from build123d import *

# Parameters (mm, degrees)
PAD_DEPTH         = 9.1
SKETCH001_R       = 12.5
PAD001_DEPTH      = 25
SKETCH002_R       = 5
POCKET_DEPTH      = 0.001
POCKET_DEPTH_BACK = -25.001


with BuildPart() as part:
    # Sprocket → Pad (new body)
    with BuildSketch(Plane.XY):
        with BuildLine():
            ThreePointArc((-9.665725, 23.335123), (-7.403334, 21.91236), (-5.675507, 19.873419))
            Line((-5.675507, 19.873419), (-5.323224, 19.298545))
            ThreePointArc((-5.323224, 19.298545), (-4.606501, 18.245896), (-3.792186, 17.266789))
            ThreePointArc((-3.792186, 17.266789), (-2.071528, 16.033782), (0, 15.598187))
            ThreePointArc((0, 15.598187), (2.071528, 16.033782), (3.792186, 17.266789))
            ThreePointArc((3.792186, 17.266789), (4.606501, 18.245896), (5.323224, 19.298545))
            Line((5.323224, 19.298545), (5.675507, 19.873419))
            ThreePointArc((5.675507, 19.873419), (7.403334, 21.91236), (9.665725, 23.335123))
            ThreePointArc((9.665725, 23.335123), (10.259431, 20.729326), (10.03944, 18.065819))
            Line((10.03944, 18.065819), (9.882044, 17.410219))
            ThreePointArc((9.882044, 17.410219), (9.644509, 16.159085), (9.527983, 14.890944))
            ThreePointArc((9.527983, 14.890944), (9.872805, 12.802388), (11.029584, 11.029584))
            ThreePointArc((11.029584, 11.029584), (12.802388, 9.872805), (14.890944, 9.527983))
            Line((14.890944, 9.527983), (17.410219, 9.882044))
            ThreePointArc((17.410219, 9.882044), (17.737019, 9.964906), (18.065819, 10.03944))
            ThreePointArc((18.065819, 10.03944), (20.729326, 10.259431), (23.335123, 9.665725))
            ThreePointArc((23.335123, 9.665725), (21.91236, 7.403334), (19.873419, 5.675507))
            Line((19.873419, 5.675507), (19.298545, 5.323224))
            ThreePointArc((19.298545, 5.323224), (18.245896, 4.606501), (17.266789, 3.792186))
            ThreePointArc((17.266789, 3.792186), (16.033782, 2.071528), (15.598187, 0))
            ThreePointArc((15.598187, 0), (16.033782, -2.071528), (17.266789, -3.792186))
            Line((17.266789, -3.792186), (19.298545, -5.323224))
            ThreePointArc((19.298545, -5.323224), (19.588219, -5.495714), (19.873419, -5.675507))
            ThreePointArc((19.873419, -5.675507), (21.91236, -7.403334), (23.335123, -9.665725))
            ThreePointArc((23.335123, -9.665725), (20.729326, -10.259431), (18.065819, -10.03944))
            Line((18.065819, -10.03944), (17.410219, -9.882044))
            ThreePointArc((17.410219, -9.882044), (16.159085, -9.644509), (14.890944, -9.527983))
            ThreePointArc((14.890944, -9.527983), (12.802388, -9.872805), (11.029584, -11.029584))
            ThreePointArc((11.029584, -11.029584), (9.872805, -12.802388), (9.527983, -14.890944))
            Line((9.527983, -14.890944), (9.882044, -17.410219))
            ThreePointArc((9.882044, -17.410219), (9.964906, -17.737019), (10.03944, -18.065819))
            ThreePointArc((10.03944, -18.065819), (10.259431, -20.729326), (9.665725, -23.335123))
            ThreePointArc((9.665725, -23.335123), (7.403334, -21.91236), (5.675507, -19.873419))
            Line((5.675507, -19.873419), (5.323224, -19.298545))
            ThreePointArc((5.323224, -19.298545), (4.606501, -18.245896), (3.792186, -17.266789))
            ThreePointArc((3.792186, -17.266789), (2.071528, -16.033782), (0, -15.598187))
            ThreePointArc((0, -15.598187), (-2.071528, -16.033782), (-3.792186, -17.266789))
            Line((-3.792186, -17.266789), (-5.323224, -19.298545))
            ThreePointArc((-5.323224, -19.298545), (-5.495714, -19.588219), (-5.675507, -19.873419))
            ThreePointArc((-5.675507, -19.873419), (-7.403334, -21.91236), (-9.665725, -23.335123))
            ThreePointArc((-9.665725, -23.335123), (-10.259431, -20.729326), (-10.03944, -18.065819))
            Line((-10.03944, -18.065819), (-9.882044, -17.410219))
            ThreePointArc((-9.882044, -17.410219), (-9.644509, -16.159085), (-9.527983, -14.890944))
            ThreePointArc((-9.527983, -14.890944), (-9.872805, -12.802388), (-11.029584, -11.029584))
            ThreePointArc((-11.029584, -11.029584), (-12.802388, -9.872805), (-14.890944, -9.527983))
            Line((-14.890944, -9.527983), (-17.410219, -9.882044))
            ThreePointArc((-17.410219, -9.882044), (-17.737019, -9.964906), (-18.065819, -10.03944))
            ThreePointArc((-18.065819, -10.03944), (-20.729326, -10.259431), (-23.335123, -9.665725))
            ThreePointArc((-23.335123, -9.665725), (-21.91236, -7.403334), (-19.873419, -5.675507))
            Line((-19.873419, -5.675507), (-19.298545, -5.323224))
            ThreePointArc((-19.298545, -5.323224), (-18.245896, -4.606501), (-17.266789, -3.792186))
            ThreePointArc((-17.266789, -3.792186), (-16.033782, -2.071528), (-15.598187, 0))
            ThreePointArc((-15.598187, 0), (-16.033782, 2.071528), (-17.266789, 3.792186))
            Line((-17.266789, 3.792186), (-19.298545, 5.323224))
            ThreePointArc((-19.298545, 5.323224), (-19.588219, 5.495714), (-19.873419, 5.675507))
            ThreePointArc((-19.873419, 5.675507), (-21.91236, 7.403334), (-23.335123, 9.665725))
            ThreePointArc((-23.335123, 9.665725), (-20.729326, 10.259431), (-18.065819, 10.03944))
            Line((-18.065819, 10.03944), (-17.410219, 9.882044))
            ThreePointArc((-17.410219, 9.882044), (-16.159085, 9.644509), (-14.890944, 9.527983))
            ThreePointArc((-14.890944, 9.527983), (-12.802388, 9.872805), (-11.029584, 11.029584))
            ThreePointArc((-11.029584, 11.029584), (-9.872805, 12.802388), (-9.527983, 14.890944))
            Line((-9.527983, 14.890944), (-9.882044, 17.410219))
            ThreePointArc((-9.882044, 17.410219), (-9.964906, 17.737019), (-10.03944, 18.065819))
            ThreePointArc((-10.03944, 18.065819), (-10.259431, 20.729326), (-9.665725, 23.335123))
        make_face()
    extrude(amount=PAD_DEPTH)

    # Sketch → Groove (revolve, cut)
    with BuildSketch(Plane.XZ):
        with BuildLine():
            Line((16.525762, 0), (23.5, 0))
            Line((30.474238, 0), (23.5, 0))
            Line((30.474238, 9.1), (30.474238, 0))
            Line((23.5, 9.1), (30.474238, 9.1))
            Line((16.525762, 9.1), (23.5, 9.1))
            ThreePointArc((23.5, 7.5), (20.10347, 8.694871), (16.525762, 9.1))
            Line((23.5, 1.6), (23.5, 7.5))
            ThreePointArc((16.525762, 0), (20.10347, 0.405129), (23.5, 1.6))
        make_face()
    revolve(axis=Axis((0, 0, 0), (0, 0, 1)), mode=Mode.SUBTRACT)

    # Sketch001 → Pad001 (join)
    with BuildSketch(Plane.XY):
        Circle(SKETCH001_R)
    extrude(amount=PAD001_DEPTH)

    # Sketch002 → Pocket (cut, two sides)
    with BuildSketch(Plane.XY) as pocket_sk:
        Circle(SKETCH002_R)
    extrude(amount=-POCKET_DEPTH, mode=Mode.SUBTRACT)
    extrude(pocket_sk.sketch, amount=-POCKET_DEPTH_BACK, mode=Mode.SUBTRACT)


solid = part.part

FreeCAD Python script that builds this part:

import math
import FreeCAD as App
import Part
import Sketcher
from FreeCAD import Vector
Q = App.Units.Quantity

doc = App.newDocument("Part")
body = doc.addObject("PartDesign::Body", "Body")

# Sketch on XY plane
sketch1 = body.newObject("Sketcher::SketchObject", "Sketch")
sketch1.AttachmentSupport = (doc.getObject("XY_Plane"), [""])
sketch1.MapMode = "FlatFace"
sketch1.addGeometry([
    Part.ArcOfCircle(Part.Circle(Vector(-13.1, 15.3, 0), Vector(0, 0, 1), 8.8), math.radians(32), math.radians(67)),  # 0
    Part.ArcOfCircle(Part.Circle(Vector(-1.5, 20.1, 0), Vector(0, 0, 1), 8.8), math.radians(158), math.radians(193)),  # 1
    Part.ArcOfCircle(Part.Circle(Vector(2.9, 20.8, 0), Vector(0, 0, 1), 13.3), math.radians(-167.96), math.radians(-165.04)),  # 2
    Part.LineSegment(Vector(-9.9, 17.4, 0), Vector(-9.5, 14.9, 0)),  # 3
    Part.ArcOfCircle(Part.Circle(Vector(-14.7, 14.7, 0), Vector(0, 0, 1), 5.1), math.radians(-45), math.radians(2)),  # 4
    Part.ArcOfCircle(Part.Circle(Vector(-14.7, 14.7, 0), Vector(0, 0, 1), 5.1), math.radians(-92), math.radians(-45)),  # 5
    Part.ArcOfCircle(Part.Circle(Vector(-14.3, 22.8, 0), Vector(0, 0, 1), 13.3), math.radians(-103.5), math.radians(-92.5)),  # 6
    Part.LineSegment(Vector(-17.4, 9.9, 0), Vector(-18.1, 10, 0)),  # 7
    Part.ArcOfCircle(Part.Circle(Vector(-20.1, 1.5, 0), Vector(0, 0, 1), 8.8), math.radians(77), math.radians(112)),  # 8
    Part.ArcOfCircle(Part.Circle(Vector(-15.3, 13.1, 0), Vector(0, 0, 1), 8.8), math.radians(-157), math.radians(-122)),  # 9
    Part.ArcOfCircle(Part.Circle(Vector(-12.7, 16.8, 0), Vector(0, 0, 1), 13.3), math.radians(-122.96), math.radians(-120.04)),  # 10
    Part.LineSegment(Vector(-19.3, 5.3, 0), Vector(-17.3, 3.8, 0)),  # 11
    Part.ArcOfCircle(Part.Circle(Vector(-20.7, 0, 0), Vector(0, 0, 1), 5.1), math.radians(0), math.radians(48)),  # 12
    Part.ArcOfCircle(Part.Circle(Vector(-20.7, 0, 0), Vector(0, 0, 1), 5.1), math.radians(-48), math.radians(0)),  # 13
    Part.ArcOfCircle(Part.Circle(Vector(-26.2, 6, 0), Vector(0, 0, 1), 13.3), math.radians(-58.5), math.radians(-47.5)),  # 14
    Part.LineSegment(Vector(-19.3, -5.3, 0), Vector(-19.9, -5.7, 0)),  # 15
    Part.ArcOfCircle(Part.Circle(Vector(-15.3, -13.1, 0), Vector(0, 0, 1), 8.8), math.radians(122), math.radians(157)),  # 16
    Part.ArcOfCircle(Part.Circle(Vector(-20.1, -1.5, 0), Vector(0, 0, 1), 8.8), math.radians(-112), math.radians(-77)),  # 17
    Part.ArcOfCircle(Part.Circle(Vector(-20.8, 2.9, 0), Vector(0, 0, 1), 13.3), math.radians(-77.96), math.radians(-75.04)),  # 18
    Part.LineSegment(Vector(-17.4, -9.9, 0), Vector(-14.9, -9.5, 0)),  # 19
    Part.ArcOfCircle(Part.Circle(Vector(-14.7, -14.7, 0), Vector(0, 0, 1), 5.1), math.radians(45), math.radians(92)),  # 20
    Part.ArcOfCircle(Part.Circle(Vector(-14.7, -14.7, 0), Vector(0, 0, 1), 5.1), math.radians(-2), math.radians(45)),  # 21
    Part.ArcOfCircle(Part.Circle(Vector(-22.8, -14.3, 0), Vector(0, 0, 1), 13.3), math.radians(-13.5), math.radians(-2.5)),  # 22
    Part.LineSegment(Vector(-9.9, -17.4, 0), Vector(-10, -18.1, 0)),  # 23
    Part.ArcOfCircle(Part.Circle(Vector(-1.5, -20.1, 0), Vector(0, 0, 1), 8.8), math.radians(167), math.radians(202)),  # 24
    Part.ArcOfCircle(Part.Circle(Vector(-13.1, -15.3, 0), Vector(0, 0, 1), 8.8), math.radians(-67), math.radians(-32)),  # 25
    Part.ArcOfCircle(Part.Circle(Vector(-16.8, -12.7, 0), Vector(0, 0, 1), 13.3), math.radians(-32.96), math.radians(-30.04)),  # 26
    Part.LineSegment(Vector(-5.3, -19.3, 0), Vector(-3.8, -17.3, 0)),  # 27
    Part.ArcOfCircle(Part.Circle(Vector(0, -20.7, 0), Vector(0, 0, 1), 5.1), math.radians(90), math.radians(138)),  # 28
    Part.ArcOfCircle(Part.Circle(Vector(0, -20.7, 0), Vector(0, 0, 1), 5.1), math.radians(42), math.radians(90)),  # 29
    Part.ArcOfCircle(Part.Circle(Vector(-6, -26.2, 0), Vector(0, 0, 1), 13.3), math.radians(31.5), math.radians(42.5)),  # 30
    Part.LineSegment(Vector(5.3, -19.3, 0), Vector(5.7, -19.9, 0)),  # 31
    Part.ArcOfCircle(Part.Circle(Vector(13.1, -15.3, 0), Vector(0, 0, 1), 8.8), math.radians(-148), math.radians(-113)),  # 32
    Part.ArcOfCircle(Part.Circle(Vector(1.5, -20.1, 0), Vector(0, 0, 1), 8.8), math.radians(-22), math.radians(13)),  # 33
    Part.ArcOfCircle(Part.Circle(Vector(-2.9, -20.8, 0), Vector(0, 0, 1), 13.3), math.radians(12.04), math.radians(14.96)),  # 34
    Part.LineSegment(Vector(9.9, -17.4, 0), Vector(9.5, -14.9, 0)),  # 35
    Part.ArcOfCircle(Part.Circle(Vector(14.7, -14.7, 0), Vector(0, 0, 1), 5.1), math.radians(135), math.radians(182)),  # 36
    Part.ArcOfCircle(Part.Circle(Vector(14.7, -14.7, 0), Vector(0, 0, 1), 5.1), math.radians(88), math.radians(135)),  # 37
    Part.ArcOfCircle(Part.Circle(Vector(14.3, -22.8, 0), Vector(0, 0, 1), 13.3), math.radians(76.5), math.radians(87.5)),  # 38
    Part.LineSegment(Vector(17.4, -9.9, 0), Vector(18.1, -10, 0)),  # 39
    Part.ArcOfCircle(Part.Circle(Vector(20.1, -1.5, 0), Vector(0, 0, 1), 8.8), math.radians(-103), math.radians(-68)),  # 40
    Part.ArcOfCircle(Part.Circle(Vector(15.3, -13.1, 0), Vector(0, 0, 1), 8.8), math.radians(23), math.radians(58)),  # 41
    Part.ArcOfCircle(Part.Circle(Vector(12.7, -16.8, 0), Vector(0, 0, 1), 13.3), math.radians(57.04), math.radians(59.96)),  # 42
    Part.LineSegment(Vector(19.3, -5.3, 0), Vector(17.3, -3.8, 0)),  # 43
    Part.ArcOfCircle(Part.Circle(Vector(20.7, 0, 0), Vector(0, 0, 1), 5.1), math.radians(180), math.radians(228)),  # 44
    Part.ArcOfCircle(Part.Circle(Vector(20.7, 0, 0), Vector(0, 0, 1), 5.1), math.radians(132), math.radians(180)),  # 45
    Part.ArcOfCircle(Part.Circle(Vector(26.2, -6, 0), Vector(0, 0, 1), 13.3), math.radians(121.5), math.radians(132.5)),  # 46
    Part.LineSegment(Vector(19.3, 5.3, 0), Vector(19.9, 5.7, 0)),  # 47
    Part.ArcOfCircle(Part.Circle(Vector(15.3, 13.1, 0), Vector(0, 0, 1), 8.8), math.radians(-58), math.radians(-23)),  # 48
    Part.ArcOfCircle(Part.Circle(Vector(20.1, 1.5, 0), Vector(0, 0, 1), 8.8), math.radians(68), math.radians(103)),  # 49
    Part.ArcOfCircle(Part.Circle(Vector(20.8, -2.9, 0), Vector(0, 0, 1), 13.3), math.radians(102.04), math.radians(104.96)),  # 50
    Part.LineSegment(Vector(17.4, 9.9, 0), Vector(14.9, 9.5, 0)),  # 51
    Part.ArcOfCircle(Part.Circle(Vector(14.7, 14.7, 0), Vector(0, 0, 1), 5.1), math.radians(-135), math.radians(-88)),  # 52
    Part.ArcOfCircle(Part.Circle(Vector(14.7, 14.7, 0), Vector(0, 0, 1), 5.1), math.radians(178), math.radians(225)),  # 53
    Part.ArcOfCircle(Part.Circle(Vector(22.8, 14.3, 0), Vector(0, 0, 1), 13.3), math.radians(166.5), math.radians(177.5)),  # 54
    Part.LineSegment(Vector(9.9, 17.4, 0), Vector(10, 18.1, 0)),  # 55
    Part.ArcOfCircle(Part.Circle(Vector(1.5, 20.1, 0), Vector(0, 0, 1), 8.8), math.radians(-13), math.radians(22)),  # 56
    Part.ArcOfCircle(Part.Circle(Vector(13.1, 15.3, 0), Vector(0, 0, 1), 8.8), math.radians(113), math.radians(148)),  # 57
    Part.LineSegment(Vector(5.7, 19.9, 0), Vector(5.3, 19.3, 0)),  # 58
    Part.ArcOfCircle(Part.Circle(Vector(-6, 26.2, 0), Vector(0, 0, 1), 13.3), math.radians(-42.5), math.radians(-31.5)),  # 59
    Part.ArcOfCircle(Part.Circle(Vector(0, 20.7, 0), Vector(0, 0, 1), 5.1), math.radians(-90), math.radians(-42)),  # 60
    Part.ArcOfCircle(Part.Circle(Vector(0, 20.7, 0), Vector(0, 0, 1), 5.1), math.radians(-138), math.radians(-90)),  # 61
    Part.ArcOfCircle(Part.Circle(Vector(6, 26.2, 0), Vector(0, 0, 1), 13.3), math.radians(-148.5), math.radians(-137.5)),  # 62
    Part.LineSegment(Vector(-5.3, 19.3, 0), Vector(-5.7, 19.9, 0)),  # 63
], False)
sketch1.addConstraint([
    Sketcher.Constraint("Coincident", 0, 2, 1, 1),
    Sketcher.Constraint("Coincident", 1, 2, 2, 1),
    Sketcher.Constraint("Coincident", 2, 2, 3, 1),
    Sketcher.Constraint("Coincident", 3, 2, 4, 2),
    Sketcher.Constraint("Tangent", 4, 1, 5, 2),
    Sketcher.Constraint("Tangent", 5, 1, 6, 2),
    Sketcher.Constraint("Tangent", 6, 1, 7, 1),
    Sketcher.Constraint("Tangent", 7, 2, 8, 1),
    Sketcher.Constraint("Coincident", 8, 2, 9, 1),
    Sketcher.Constraint("Coincident", 9, 2, 10, 1),
    Sketcher.Constraint("Coincident", 10, 2, 11, 1),
    Sketcher.Constraint("Coincident", 11, 2, 12, 2),
    Sketcher.Constraint("Tangent", 12, 1, 13, 2),
    Sketcher.Constraint("Tangent", 13, 1, 14, 2),
    Sketcher.Constraint("Tangent", 14, 1, 15, 1),
    Sketcher.Constraint("Tangent", 15, 2, 16, 1),
    Sketcher.Constraint("Coincident", 16, 2, 17, 1),
    Sketcher.Constraint("Coincident", 17, 2, 18, 1),
    Sketcher.Constraint("Coincident", 18, 2, 19, 1),
    Sketcher.Constraint("Coincident", 19, 2, 20, 2),
    Sketcher.Constraint("Tangent", 20, 1, 21, 2),
    Sketcher.Constraint("Tangent", 21, 1, 22, 2),
    Sketcher.Constraint("Tangent", 22, 1, 23, 1),
    Sketcher.Constraint("Tangent", 23, 2, 24, 1),
    Sketcher.Constraint("Coincident", 24, 2, 25, 1),
    Sketcher.Constraint("Coincident", 25, 2, 26, 1),
    Sketcher.Constraint("Coincident", 26, 2, 27, 1),
    Sketcher.Constraint("Coincident", 27, 2, 28, 2),
    Sketcher.Constraint("Tangent", 28, 1, 29, 2),
    Sketcher.Constraint("Tangent", 29, 1, 30, 2),
    Sketcher.Constraint("Tangent", 30, 1, 31, 1),
    Sketcher.Constraint("Tangent", 31, 2, 32, 1),
    Sketcher.Constraint("Coincident", 32, 2, 33, 1),
    Sketcher.Constraint("Coincident", 33, 2, 34, 1),
    Sketcher.Constraint("Coincident", 34, 2, 35, 1),
    Sketcher.Constraint("Coincident", 35, 2, 36, 2),
    Sketcher.Constraint("Tangent", 36, 1, 37, 2),
    Sketcher.Constraint("Tangent", 37, 1, 38, 2),
    Sketcher.Constraint("Tangent", 38, 1, 39, 1),
    Sketcher.Constraint("Tangent", 39, 2, 40, 1),
    Sketcher.Constraint("Coincident", 40, 2, 41, 1),
    Sketcher.Constraint("Coincident", 41, 2, 42, 1),
    Sketcher.Constraint("Coincident", 42, 2, 43, 1),
    Sketcher.Constraint("Coincident", 43, 2, 44, 2),
    Sketcher.Constraint("Tangent", 44, 1, 45, 2),
    Sketcher.Constraint("Tangent", 45, 1, 46, 2),
    Sketcher.Constraint("Tangent", 46, 1, 47, 1),
    Sketcher.Constraint("Tangent", 47, 2, 48, 1),
    Sketcher.Constraint("Coincident", 48, 2, 49, 1),
    Sketcher.Constraint("Coincident", 49, 2, 50, 1),
    Sketcher.Constraint("Coincident", 50, 2, 51, 1),
    Sketcher.Constraint("Coincident", 51, 2, 52, 2),
    Sketcher.Constraint("Tangent", 52, 1, 53, 2),
    Sketcher.Constraint("Tangent", 53, 1, 54, 2),
    Sketcher.Constraint("Tangent", 54, 1, 55, 1),
    Sketcher.Constraint("Tangent", 55, 2, 56, 1),
    Sketcher.Constraint("Coincident", 56, 2, 57, 1),
    Sketcher.Constraint("Tangent", 57, 2, 58, 1),
    Sketcher.Constraint("Tangent", 58, 2, 59, 2),
    Sketcher.Constraint("Tangent", 59, 1, 60, 2),
    Sketcher.Constraint("Tangent", 60, 1, 61, 2),
    Sketcher.Constraint("Tangent", 61, 1, 62, 2),
    Sketcher.Constraint("Tangent", 62, 1, 63, 1),
    Sketcher.Constraint("Tangent", 63, 2, 0, 1),
    Sketcher.Constraint("Equal", 4, 5),
    Sketcher.Constraint("Equal", 1, 8),
    Sketcher.Constraint("Equal", 0, 9),
    Sketcher.Constraint("Equal", 12, 13),
    Sketcher.Constraint("Equal", 9, 16),
    Sketcher.Constraint("Equal", 8, 17),
    Sketcher.Constraint("Equal", 2, 18),
    Sketcher.Constraint("Equal", 5, 20),
    Sketcher.Constraint("Equal", 20, 21),
    Sketcher.Constraint("Equal", 6, 22),
    Sketcher.Constraint("Equal", 17, 24),
    Sketcher.Constraint("Equal", 16, 25),
    Sketcher.Constraint("Equal", 10, 26),
    Sketcher.Constraint("Equal", 13, 28),
    Sketcher.Constraint("Equal", 28, 29),
    Sketcher.Constraint("Equal", 14, 30),
    Sketcher.Constraint("Equal", 25, 32),
    Sketcher.Constraint("Equal", 24, 33),
    Sketcher.Constraint("Equal", 18, 34),
    Sketcher.Constraint("Equal", 21, 36),
    Sketcher.Constraint("Equal", 36, 37),
    Sketcher.Constraint("Equal", 22, 38),
    Sketcher.Constraint("Equal", 33, 40),
    Sketcher.Constraint("Equal", 32, 41),
    Sketcher.Constraint("Equal", 26, 42),
    Sketcher.Constraint("Equal", 29, 44),
    Sketcher.Constraint("Equal", 44, 45),
    Sketcher.Constraint("Equal", 30, 46),
    Sketcher.Constraint("Equal", 41, 48),
    Sketcher.Constraint("Equal", 40, 49),
    Sketcher.Constraint("Equal", 34, 50),
    Sketcher.Constraint("Equal", 37, 52),
    Sketcher.Constraint("Equal", 52, 53),
    Sketcher.Constraint("Equal", 38, 54),
    Sketcher.Constraint("Equal", 49, 56),
    Sketcher.Constraint("Equal", 48, 57),
    Sketcher.Constraint("Equal", 46, 59),
    Sketcher.Constraint("Equal", 45, 60),
    Sketcher.Constraint("Equal", 60, 61),
    Sketcher.Constraint("Equal", 59, 62),
    Sketcher.Constraint("Symmetric", 0, 3, 32, 3, -1, 1),
    Sketcher.Constraint("Symmetric", 1, 3, 33, 3, -1, 1),
    Sketcher.Constraint("Symmetric", 2, 3, 34, 3, -1, 1),
    Sketcher.Constraint("Symmetric", 4, 3, 36, 3, -1, 1),
    Sketcher.Constraint("Symmetric", 8, 3, 40, 3, -1, 1),
    Sketcher.Constraint("Symmetric", 9, 3, 41, 3, -1, 1),
    Sketcher.Constraint("Symmetric", 10, 3, 42, 3, -1, 1),
    Sketcher.Constraint("Symmetric", 12, 3, 44, 3, -1, 1),
    Sketcher.Constraint("Symmetric", 16, 3, 48, 3, -1, 1),
    Sketcher.Constraint("Symmetric", 17, 3, 49, 3, -1, 1),
    Sketcher.Constraint("Symmetric", 18, 3, 50, 3, -1, 1),
    Sketcher.Constraint("Symmetric", 20, 3, 52, 3, -1, 1),
    Sketcher.Constraint("Symmetric", 24, 3, 56, 3, -1, 1),
    Sketcher.Constraint("Symmetric", 25, 3, 57, 3, -1, 1),
    Sketcher.Constraint("Symmetric", 28, 3, 60, 3, -1, 1),
    Sketcher.Constraint("Symmetric", 26, 2, 58, 2, -1, 1),
    Sketcher.Constraint("Symmetric", 25, 3, 32, 3, -2),
    Sketcher.Constraint("Symmetric", 24, 3, 33, 3, -2),
    Sketcher.Constraint("Symmetric", 20, 3, 36, 3, -2),
    Sketcher.Constraint("Symmetric", 17, 3, 40, 3, -2),
    Sketcher.Constraint("Symmetric", 16, 3, 41, 3, -2),
    Sketcher.Constraint("Symmetric", 59, 3, 62, 3, -2),
    Sketcher.Constraint("Symmetric", 22, 1, 34, 2, -2),
    Sketcher.Constraint("Symmetric", 18, 2, 38, 1, -2),
    Sketcher.Constraint("Symmetric", 14, 1, 42, 2, -2),
    Sketcher.Constraint("Symmetric", 13, 1, 43, 2, -2),
    Sketcher.Constraint("Symmetric", 10, 2, 46, 1, -2),
    Sketcher.Constraint("Symmetric", 6, 1, 50, 2, -2),
    Sketcher.Constraint("Symmetric", 2, 2, 54, 1, -2),
    Sketcher.Constraint("PointOnObject", 12, 1, -1),
    Sketcher.Constraint("PointOnObject", 28, 1, -2),
    Sketcher.Constraint("PointOnObject", 44, 1, -1),
    Sketcher.Constraint("PointOnObject", 60, 1, -2),
    Sketcher.Constraint("Perpendicular", 3, 19),
    Sketcher.Constraint("Perpendicular", 7, 23),
    Sketcher.Constraint("Perpendicular", 11, 27),
    Sketcher.Constraint("Perpendicular", 15, 31),
    Sketcher.Constraint("Perpendicular", 19, 35),
    Sketcher.Constraint("Perpendicular", 27, 43),
    Sketcher.Constraint("Perpendicular", 35, 51),
    Sketcher.Constraint("Perpendicular", 47, 63),
    Sketcher.Constraint("Horizontal", 27, 2, 29, 1),
    Sketcher.Constraint("Horizontal", 25, 2, 31, 2),
    Sketcher.Constraint("Horizontal", 23, 2, 33, 2),
    Sketcher.Constraint("Horizontal", 21, 1, 35, 2),
    Sketcher.Constraint("Horizontal", 20, 1, 36, 1),
    Sketcher.Constraint("Horizontal", 19, 2, 37, 1),
    Sketcher.Constraint("Horizontal", 17, 2, 39, 2),
    Sketcher.Constraint("Horizontal", 15, 2, 41, 2),
    Sketcher.Constraint("Horizontal", 4, 1, 52, 1),
    Sketcher.Constraint("Vertical", 4, 1, 20, 1),
    Sketcher.Constraint("Equal", 3, 11),
    Sketcher.Constraint("Equal", 7, 15),
    Sketcher.Constraint("Equal", 15, 23),
    Sketcher.Constraint("Equal", 23, 31),
    Sketcher.Constraint("Angle", 3, Q("-82 deg")),
    Sketcher.Constraint("Angle", 11, Q("-37.000001 deg")),
    Sketcher.Constraint("Angle", 15, Q("-148.500017 deg")),
    Sketcher.Constraint("Radius", 4, 5.1435),
    Sketcher.Constraint("Radius", 14, 13.271459),
    Sketcher.Constraint("Radius", 0, 8.756044),
    Sketcher.Constraint("Radius", 1, 8.756046),
    Sketcher.Constraint("Radius", 2, 13.271147),
    Sketcher.Constraint("Radius", 6, 13.271543),
    Sketcher.Constraint("Radius", 10, 13.271567),
    Sketcher.Constraint("Radius", 12, 5.143493),
    Sketcher.Constraint("Distance", 7, 0.674229),
    Sketcher.Constraint("DistanceX", 10, 3, -1, 1, 12.653848),
    Sketcher.Constraint("DistanceY", 26, 3, -1, 1, 12.653848),
    Sketcher.Constraint("DistanceX", 1, 2, -1, 1, 10.03944),
    Sketcher.Constraint("DistanceY", -1, 1, 1, 2, 18.065819),
    Sketcher.Constraint("DistanceX", 4, 1, -1, 1, 11.029584),
])
pad1 = body.newObject("PartDesign::Pad", "Pad")
pad1.Profile = sketch1
pad1.Length = 9.1

# Sketch on XZ plane
sketch2 = body.newObject("Sketcher::SketchObject", "Sketch001")
sketch2.AttachmentSupport = (doc.getObject("XZ_Plane"), [""])
sketch2.MapMode = "FlatFace"
sketch2.addGeometry([
    Part.LineSegment(Vector(17, 0, 0), Vector(30, 0, 0)),  # 0
    Part.LineSegment(Vector(30, 0, 0), Vector(30, 9, 0)),  # 1
    Part.LineSegment(Vector(30, 9, 0), Vector(17, 9, 0)),  # 2
    Part.ArcOfCircle(Part.Circle(Vector(17, -7, 0), Vector(0, 0, 1), 16), math.radians(64), math.radians(90)),  # 3
    Part.LineSegment(Vector(24, 8, 0), Vector(24, 2, 0)),  # 4
    Part.ArcOfCircle(Part.Circle(Vector(17, 16, 0), Vector(0, 0, 1), 16), math.radians(-90), math.radians(-64)),  # 5
], False)
sketch2.addConstraint([
    Sketcher.Constraint("Coincident", 0, 2, 1, 1),
    Sketcher.Constraint("Coincident", 1, 2, 2, 1),
    Sketcher.Constraint("Tangent", 2, 2, 3, 2),
    Sketcher.Constraint("Coincident", 3, 1, 4, 1),
    Sketcher.Constraint("Coincident", 4, 2, 5, 2),
    Sketcher.Constraint("Tangent", 5, 1, 0, 1),
    Sketcher.Constraint("Horizontal", 0),
    Sketcher.Constraint("Vertical", 1),
    Sketcher.Constraint("Horizontal", 2),
    Sketcher.Constraint("Vertical", 4),
    Sketcher.Constraint("Equal", 3, 5),
    Sketcher.Constraint("PointOnObject", 0, 2, -1),
    Sketcher.Constraint("Vertical", 3, 3, 5, 3),
    Sketcher.Constraint("DistanceY", 1, 1, 1, 2, 9.1),
    Sketcher.Constraint("DistanceY", 4, 2, 4, 1, 5.9),
    Sketcher.Constraint("DistanceX", -1, 1, 3, 1, 23.5),
    Sketcher.Constraint("Radius", 3, 16.000002),
    Sketcher.Constraint("DistanceX", 0, 1, 0, 2, 13.948476),
])
groove = body.newObject("PartDesign::Groove", "Groove")
groove.Profile = sketch2
groove.ReferenceAxis = (sketch2, ["V_Axis"])
groove.Angle = 360

# Sketch on XY plane
sketch3 = body.newObject("Sketcher::SketchObject", "Sketch002")
sketch3.AttachmentSupport = (doc.getObject("XY_Plane"), [""])
sketch3.MapMode = "FlatFace"
sketch3.addGeometry(Part.Circle(Vector(0, 0, 0), Vector(0, 0, 1), 12), False)
sketch3.addConstraint([
    Sketcher.Constraint("Coincident", 0, 3, -1, 1),
    Sketcher.Constraint("Diameter", 0, 25.0),
])
pad2 = body.newObject("PartDesign::Pad", "Pad001")
pad2.Profile = sketch3
pad2.Length = 25

# Sketch on XY plane
sketch4 = body.newObject("Sketcher::SketchObject", "Sketch003")
sketch4.AttachmentSupport = (doc.getObject("XY_Plane"), [""])
sketch4.MapMode = "FlatFace"
sketch4.addGeometry(Part.Circle(Vector(0, 0, 0), Vector(0, 0, 1), 5), False)
sketch4.addConstraint([
    Sketcher.Constraint("Coincident", 0, 3, -1, 1),
    Sketcher.Constraint("Diameter", 0, 10.0),
])
pocket1 = body.newObject("PartDesign::Pocket", "Pocket")
pocket1.Profile = sketch4
pocket1.Type = "ThroughAll"
pocket1.Midplane = True

doc.recompute()
